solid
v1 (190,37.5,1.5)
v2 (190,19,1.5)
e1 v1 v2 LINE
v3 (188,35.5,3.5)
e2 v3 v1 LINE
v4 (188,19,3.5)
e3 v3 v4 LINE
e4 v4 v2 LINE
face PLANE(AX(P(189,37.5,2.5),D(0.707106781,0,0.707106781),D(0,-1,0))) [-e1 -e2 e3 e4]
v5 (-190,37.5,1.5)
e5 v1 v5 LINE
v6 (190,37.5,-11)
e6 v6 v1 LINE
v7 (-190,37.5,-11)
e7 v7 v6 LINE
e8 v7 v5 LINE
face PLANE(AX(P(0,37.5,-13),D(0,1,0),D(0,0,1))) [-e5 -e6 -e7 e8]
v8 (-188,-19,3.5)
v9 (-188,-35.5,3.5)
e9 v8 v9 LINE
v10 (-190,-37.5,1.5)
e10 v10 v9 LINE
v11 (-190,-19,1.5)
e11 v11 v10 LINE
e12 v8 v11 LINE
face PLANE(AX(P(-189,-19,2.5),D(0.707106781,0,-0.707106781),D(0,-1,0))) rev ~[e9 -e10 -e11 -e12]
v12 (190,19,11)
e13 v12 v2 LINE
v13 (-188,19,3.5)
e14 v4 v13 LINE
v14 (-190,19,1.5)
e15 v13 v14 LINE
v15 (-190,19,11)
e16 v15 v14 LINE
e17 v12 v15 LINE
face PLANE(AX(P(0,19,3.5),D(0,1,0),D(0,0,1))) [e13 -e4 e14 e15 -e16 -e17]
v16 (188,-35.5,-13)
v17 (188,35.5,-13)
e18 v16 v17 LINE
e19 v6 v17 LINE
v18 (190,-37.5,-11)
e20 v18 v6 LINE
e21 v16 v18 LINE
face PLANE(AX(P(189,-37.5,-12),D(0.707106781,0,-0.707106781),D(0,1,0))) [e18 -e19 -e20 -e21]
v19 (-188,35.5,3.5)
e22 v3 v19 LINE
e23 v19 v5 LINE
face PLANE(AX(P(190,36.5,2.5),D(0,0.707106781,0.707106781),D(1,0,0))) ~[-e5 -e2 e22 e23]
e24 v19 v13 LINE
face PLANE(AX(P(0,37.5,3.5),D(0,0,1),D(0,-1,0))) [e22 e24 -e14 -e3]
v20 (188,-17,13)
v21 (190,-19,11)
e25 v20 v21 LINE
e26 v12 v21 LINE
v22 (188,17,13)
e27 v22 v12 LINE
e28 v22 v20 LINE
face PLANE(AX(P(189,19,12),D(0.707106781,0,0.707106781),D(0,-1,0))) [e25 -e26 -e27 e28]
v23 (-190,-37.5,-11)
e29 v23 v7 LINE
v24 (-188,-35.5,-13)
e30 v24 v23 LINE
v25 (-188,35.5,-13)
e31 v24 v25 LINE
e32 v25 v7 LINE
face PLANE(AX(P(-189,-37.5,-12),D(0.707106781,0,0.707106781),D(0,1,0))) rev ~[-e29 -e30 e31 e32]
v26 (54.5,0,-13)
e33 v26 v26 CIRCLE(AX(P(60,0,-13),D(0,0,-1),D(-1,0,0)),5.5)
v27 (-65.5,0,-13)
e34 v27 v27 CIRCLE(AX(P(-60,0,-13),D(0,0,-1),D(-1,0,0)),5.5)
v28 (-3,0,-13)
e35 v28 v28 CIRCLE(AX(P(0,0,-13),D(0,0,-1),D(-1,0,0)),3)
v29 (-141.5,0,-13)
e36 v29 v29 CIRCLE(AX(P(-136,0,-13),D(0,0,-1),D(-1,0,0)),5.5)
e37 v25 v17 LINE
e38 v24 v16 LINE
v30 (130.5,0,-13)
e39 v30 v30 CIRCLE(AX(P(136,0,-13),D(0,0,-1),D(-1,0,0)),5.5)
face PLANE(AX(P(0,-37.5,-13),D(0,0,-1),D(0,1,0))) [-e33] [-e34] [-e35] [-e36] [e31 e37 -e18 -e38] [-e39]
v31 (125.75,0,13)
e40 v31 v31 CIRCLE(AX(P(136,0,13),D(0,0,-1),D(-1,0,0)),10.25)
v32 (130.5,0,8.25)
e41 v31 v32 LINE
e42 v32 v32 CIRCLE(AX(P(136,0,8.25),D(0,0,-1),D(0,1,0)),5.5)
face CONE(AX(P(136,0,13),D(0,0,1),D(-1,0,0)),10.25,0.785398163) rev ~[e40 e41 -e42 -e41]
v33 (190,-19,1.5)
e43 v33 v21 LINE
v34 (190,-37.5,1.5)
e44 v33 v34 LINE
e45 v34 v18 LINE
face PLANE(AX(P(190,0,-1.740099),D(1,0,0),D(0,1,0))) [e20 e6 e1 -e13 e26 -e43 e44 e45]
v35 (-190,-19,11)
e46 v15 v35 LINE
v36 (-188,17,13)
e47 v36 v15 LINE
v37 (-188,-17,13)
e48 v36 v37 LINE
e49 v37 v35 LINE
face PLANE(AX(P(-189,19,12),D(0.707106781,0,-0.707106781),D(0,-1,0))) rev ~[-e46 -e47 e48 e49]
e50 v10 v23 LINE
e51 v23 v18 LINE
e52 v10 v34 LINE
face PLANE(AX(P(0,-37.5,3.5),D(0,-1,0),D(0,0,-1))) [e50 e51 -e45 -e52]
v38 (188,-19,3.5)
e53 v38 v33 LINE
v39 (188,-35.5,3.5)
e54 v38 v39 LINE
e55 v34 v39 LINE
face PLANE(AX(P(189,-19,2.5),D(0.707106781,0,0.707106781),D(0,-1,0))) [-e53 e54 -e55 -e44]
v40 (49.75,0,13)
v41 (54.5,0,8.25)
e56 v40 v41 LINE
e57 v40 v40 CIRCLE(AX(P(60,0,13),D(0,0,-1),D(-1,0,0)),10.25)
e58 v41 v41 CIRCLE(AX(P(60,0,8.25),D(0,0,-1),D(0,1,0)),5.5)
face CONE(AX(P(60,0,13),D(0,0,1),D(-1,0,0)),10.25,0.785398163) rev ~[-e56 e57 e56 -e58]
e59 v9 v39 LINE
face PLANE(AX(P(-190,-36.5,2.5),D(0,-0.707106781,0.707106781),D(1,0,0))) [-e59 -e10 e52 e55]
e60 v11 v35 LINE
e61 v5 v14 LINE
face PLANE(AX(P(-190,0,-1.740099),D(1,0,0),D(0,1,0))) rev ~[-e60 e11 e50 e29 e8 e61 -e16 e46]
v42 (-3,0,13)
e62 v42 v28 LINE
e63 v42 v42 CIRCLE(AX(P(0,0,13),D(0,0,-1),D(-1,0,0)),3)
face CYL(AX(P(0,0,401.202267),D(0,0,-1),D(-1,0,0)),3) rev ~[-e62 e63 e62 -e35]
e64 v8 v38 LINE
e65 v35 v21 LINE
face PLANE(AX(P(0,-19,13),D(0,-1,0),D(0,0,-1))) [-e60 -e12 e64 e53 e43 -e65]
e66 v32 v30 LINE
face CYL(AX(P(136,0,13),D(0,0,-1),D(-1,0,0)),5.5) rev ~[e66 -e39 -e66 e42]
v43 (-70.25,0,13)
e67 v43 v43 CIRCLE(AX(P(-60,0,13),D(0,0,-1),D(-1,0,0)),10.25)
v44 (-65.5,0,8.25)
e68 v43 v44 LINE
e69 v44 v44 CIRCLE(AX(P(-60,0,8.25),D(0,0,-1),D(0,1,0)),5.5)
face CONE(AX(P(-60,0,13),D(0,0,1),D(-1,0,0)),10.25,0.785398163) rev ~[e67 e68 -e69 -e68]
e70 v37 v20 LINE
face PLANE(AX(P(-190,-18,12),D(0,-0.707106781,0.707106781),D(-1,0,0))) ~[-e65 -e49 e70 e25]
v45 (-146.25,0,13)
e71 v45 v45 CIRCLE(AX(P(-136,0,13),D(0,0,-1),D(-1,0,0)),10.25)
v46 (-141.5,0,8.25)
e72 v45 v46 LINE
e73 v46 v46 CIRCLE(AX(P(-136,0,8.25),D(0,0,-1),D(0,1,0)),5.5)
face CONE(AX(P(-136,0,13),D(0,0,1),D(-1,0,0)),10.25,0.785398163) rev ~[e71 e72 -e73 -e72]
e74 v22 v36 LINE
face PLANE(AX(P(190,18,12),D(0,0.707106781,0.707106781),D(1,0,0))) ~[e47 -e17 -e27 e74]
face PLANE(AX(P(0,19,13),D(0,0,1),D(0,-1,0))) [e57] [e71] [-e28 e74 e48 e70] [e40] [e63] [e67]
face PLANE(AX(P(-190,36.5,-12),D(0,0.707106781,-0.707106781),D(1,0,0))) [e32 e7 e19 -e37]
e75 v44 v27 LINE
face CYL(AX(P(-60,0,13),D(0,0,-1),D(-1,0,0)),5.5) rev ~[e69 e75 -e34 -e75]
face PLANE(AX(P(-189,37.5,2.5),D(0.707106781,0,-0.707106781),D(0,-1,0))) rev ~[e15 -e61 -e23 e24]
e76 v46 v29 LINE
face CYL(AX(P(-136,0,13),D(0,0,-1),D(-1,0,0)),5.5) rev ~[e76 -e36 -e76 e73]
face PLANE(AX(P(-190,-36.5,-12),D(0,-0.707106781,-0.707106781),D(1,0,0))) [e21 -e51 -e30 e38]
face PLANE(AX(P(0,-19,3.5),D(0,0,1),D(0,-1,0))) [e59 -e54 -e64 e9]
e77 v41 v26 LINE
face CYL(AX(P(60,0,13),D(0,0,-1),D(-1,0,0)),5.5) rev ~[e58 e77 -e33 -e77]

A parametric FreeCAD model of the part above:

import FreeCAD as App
import Part
import Sketcher
Q = App.Units.Quantity


def edges_at(feature, points):
    """Names of the edges that pass closest to the given points."""
    edges = feature.Shape.Edges
    near = lambda p: min(range(len(edges)), key=lambda i: edges[i].distToShape(Part.Vertex(*p))[0])
    return sorted({f"Edge{near(p) + 1}" for p in points})

doc = App.newDocument("Part")
body = doc.addObject("PartDesign::Body", "Body")

# Sketch on YZ plane
sketch1 = body.newObject("Sketcher::SketchObject", "Sketch")
sketch1.AttachmentSupport = (doc.getObject("YZ_Plane"), [""])
sketch1.MapMode = "FlatFace"
sketch1.addGeometry(Part.LineSegment(App.Vector(19, 13, 0), App.Vector(-19, 13, 0)), False)
sketch1.addGeometry(Part.LineSegment(App.Vector(-19, 13, 0), App.Vector(-19, 4, 0)), False)
sketch1.addGeometry(Part.LineSegment(App.Vector(-19, 4, 0), App.Vector(-38, 4, 0)), False)
sketch1.addGeometry(Part.LineSegment(App.Vector(-38, 4, 0), App.Vector(-38, -13, 0)), False)
sketch1.addGeometry(Part.LineSegment(App.Vector(-38, -13, 0), App.Vector(38, -13, 0)), False)
sketch1.addGeometry(Part.LineSegment(App.Vector(38, -13, 0), App.Vector(38, 4, 0)), False)
sketch1.addGeometry(Part.LineSegment(App.Vector(38, 4, 0), App.Vector(19, 4, 0)), False)
sketch1.addGeometry(Part.LineSegment(App.Vector(19, 4, 0), App.Vector(19, 13, 0)), False)
sketch1.addConstraint(Sketcher.Constraint("Coincident", 0, 2, 1, 1))
sketch1.addConstraint(Sketcher.Constraint("Coincident", 1, 2, 2, 1))
sketch1.addConstraint(Sketcher.Constraint("Coincident", 2, 2, 3, 1))
sketch1.addConstraint(Sketcher.Constraint("Coincident", 3, 2, 4, 1))
sketch1.addConstraint(Sketcher.Constraint("Coincident", 4, 2, 5, 1))
sketch1.addConstraint(Sketcher.Constraint("Coincident", 5, 2, 6, 1))
sketch1.addConstraint(Sketcher.Constraint("Coincident", 6, 2, 7, 1))
sketch1.addConstraint(Sketcher.Constraint("Coincident", 7, 2, 0, 1))
sketch1.addConstraint(Sketcher.Constraint("Horizontal", 0))
sketch1.addConstraint(Sketcher.Constraint("Vertical", 1))
sketch1.addConstraint(Sketcher.Constraint("Horizontal", 2))
sketch1.addConstraint(Sketcher.Constraint("Vertical", 3))
sketch1.addConstraint(Sketcher.Constraint("Horizontal", 4))
sketch1.addConstraint(Sketcher.Constraint("Vertical", 5))
sketch1.addConstraint(Sketcher.Constraint("Horizontal", 6))
sketch1.addConstraint(Sketcher.Constraint("Vertical", 7))
sketch1.addConstraint(Sketcher.Constraint("Symmetric", 2, 2, 5, 2, -2))
sketch1.addConstraint(Sketcher.Constraint("Equal", 2, 6))
sketch1.addConstraint(Sketcher.Constraint("DistanceX", 0, 2, 0, 1, Q("38 mm")))
sketch1.addConstraint(Sketcher.Constraint("DistanceX", 4, 1, 4, 2, Q("75 mm")))
sketch1.addConstraint(Sketcher.Constraint("DistanceY", 1, 2, 1, 1, Q("9.5 mm")))
sketch1.addConstraint(Sketcher.Constraint("DistanceY", 3, 2, 3, 1, Q("16.5 mm")))
sketch1.addConstraint(Sketcher.Constraint("DistanceY", -1, 1, 0, 2, Q("13 mm")))
pad1 = body.newObject("PartDesign::Pad", "Pad")
pad1.Profile = sketch1
pad1.Length = 380
pad1.Midplane = True
doc.recompute()

chamfer = body.newObject("PartDesign::Chamfer", "Chamfer")
chamfer.Base = (pad1, edges_at(pad1, [
    (0, -37.5, -13),
    (-190, 0, -13),
    (0, 37.5, -13),
    (190, 0, -13),
    (-190, 0, 13),
    (0, -19, 13),
    (190, 0, 13),
    (0, 19, 13),
    (0, -37.5, 3.5),
    (0, 37.5, 3.5),
    (190, 28.25, 3.5),
    (190, -28.25, 3.5),
    (-190, -28.25, 3.5),
    (-190, 28.25, 3.5),
]))
chamfer.Size = 2

# Sketch on XY plane
sketch2 = body.newObject("Sketcher::SketchObject", "Sketch001")
sketch2.AttachmentSupport = (doc.getObject("XY_Plane"), [""])
sketch2.MapMode = "FlatFace"
sketch2.AttachmentOffset = App.Placement(App.Vector(0, 0, 13), App.Rotation())
sketch2.addGeometry(Part.Circle(App.Vector(0, 0, 0), App.Vector(0, 0, 1), 3), False)
sketch2.addConstraint(Sketcher.Constraint("Coincident", 0, 3, -1, 1))
sketch2.addConstraint(Sketcher.Constraint("Diameter", 0, Q("6 mm")))
doc.recompute()
hole = body.newObject("PartDesign::Hole", "Hole")
hole.Profile = sketch2
hole.ThreadType = "None"
hole.Diameter = 6
hole.DepthType = "ThroughAll"

# Sketch on XY plane
sketch3 = body.newObject("Sketcher::SketchObject", "Sketch002")
sketch3.AttachmentSupport = (doc.getObject("XY_Plane"), [""])
sketch3.MapMode = "FlatFace"
sketch3.AttachmentOffset = App.Placement(App.Vector(0, 0, 13), App.Rotation())
sketch3.addGeometry(Part.Circle(App.Vector(-136, 0, 0), App.Vector(0, 0, 1), 6), False)
sketch3.addGeometry(Part.Circle(App.Vector(-60, 0, 0), App.Vector(0, 0, 1), 6), False)
sketch3.addGeometry(Part.Circle(App.Vector(60, 0, 0), App.Vector(0, 0, 1), 6), False)
sketch3.addGeometry(Part.Circle(App.Vector(136, 0, 0), App.Vector(0, 0, 1), 6), False)
sketch3.addConstraint(Sketcher.Constraint("Equal", 0, 1))
sketch3.addConstraint(Sketcher.Constraint("Equal", 1, 2))
sketch3.addConstraint(Sketcher.Constraint("Equal", 2, 3))
sketch3.addConstraint(Sketcher.Constraint("Symmetric", 1, 3, 2, 3, -1, 1))
sketch3.addConstraint(Sketcher.Constraint("Symmetric", 0, 3, 3, 3, -1, 1))
sketch3.addConstraint(Sketcher.Constraint("PointOnObject", 0, 3, -1))
sketch3.addConstraint(Sketcher.Constraint("PointOnObject", 1, 3, -1))
sketch3.addConstraint(Sketcher.Constraint("Diameter", 0, Q("11 mm")))
sketch3.addConstraint(Sketcher.Constraint("DistanceX", 0, 3, -1, 1, Q("136 mm")))
sketch3.addConstraint(Sketcher.Constraint("DistanceX", 1, 3, -1, 1, Q("60 mm")))
doc.recompute()
hole2 = body.newObject("PartDesign::Hole", "Hole001")
hole2.Profile = sketch3
hole2.ThreadType = "None"
hole2.Diameter = 11
hole2.DepthType = "ThroughAll"
hole2.HoleCutType = "Countersink"
hole2.HoleCutDiameter = 20.5
hole2.HoleCutCountersinkAngle = 90

doc.recompute()
